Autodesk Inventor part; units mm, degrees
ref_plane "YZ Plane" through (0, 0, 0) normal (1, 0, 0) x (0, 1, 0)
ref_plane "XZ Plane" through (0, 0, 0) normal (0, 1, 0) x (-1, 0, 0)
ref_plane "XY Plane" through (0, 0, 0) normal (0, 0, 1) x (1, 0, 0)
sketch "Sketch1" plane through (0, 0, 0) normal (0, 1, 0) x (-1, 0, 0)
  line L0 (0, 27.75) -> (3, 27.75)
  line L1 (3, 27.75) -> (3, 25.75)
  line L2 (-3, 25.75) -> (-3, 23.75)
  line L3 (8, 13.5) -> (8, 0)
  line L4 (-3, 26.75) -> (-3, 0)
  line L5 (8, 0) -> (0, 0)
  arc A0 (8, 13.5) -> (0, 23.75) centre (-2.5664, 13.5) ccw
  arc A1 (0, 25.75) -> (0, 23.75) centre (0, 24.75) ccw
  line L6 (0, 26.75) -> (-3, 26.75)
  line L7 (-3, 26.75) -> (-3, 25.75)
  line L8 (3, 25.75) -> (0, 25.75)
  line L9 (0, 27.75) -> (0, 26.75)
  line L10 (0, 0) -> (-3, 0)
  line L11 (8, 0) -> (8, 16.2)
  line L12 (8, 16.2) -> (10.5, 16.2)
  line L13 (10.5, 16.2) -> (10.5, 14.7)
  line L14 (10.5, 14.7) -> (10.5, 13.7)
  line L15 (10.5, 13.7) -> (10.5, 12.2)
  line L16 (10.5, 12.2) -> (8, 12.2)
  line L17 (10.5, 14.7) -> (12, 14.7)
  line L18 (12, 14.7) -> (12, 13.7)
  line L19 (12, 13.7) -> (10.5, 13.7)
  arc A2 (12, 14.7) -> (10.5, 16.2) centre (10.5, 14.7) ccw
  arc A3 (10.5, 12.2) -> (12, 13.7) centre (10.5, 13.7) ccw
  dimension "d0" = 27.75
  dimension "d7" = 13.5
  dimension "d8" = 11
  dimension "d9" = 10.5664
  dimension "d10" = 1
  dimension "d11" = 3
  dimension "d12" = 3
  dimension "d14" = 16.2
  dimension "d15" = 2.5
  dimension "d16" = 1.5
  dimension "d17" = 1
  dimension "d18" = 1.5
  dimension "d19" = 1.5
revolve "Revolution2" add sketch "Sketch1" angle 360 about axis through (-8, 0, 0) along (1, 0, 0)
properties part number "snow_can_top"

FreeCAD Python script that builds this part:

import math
import FreeCAD as App
import Part
import Sketcher
from FreeCAD import Vector

doc = App.newDocument("Part")
body = doc.addObject("PartDesign::Body", "Body")

sketch1 = doc.addObject("Sketcher::SketchObject", "Sketch")
body.addObject(sketch1)
sketch1.AttachmentSupport = (doc.XZ_Plane, [""])
sketch1.MapMode = "FlatFace"
sketch1.addGeometry([
    Part.LineSegment(Vector(-3, 27.75, 0), Vector(0, 27.75, 0)),
    Part.LineSegment(Vector(0, 27.75, 0), Vector(0, 26.75, 0)),
    Part.LineSegment(Vector(0, 26.75, 0), Vector(3, 26.75, 0)),
    Part.LineSegment(Vector(3, 26.75, 0), Vector(3, 0, 0)),
    Part.LineSegment(Vector(3, 0, 0), Vector(-8, 0, 0)),
    Part.LineSegment(Vector(-8, 0, 0), Vector(-8, 12.2, 0)),
    Part.LineSegment(Vector(-8, 12.2, 0), Vector(-10.5, 12.2, 0)),
    Part.ArcOfCircle(Part.Circle(Vector(-10.5, 13.7, 0), Vector(0, 0, 1), 1.5), math.radians(180), math.radians(270)),
    Part.LineSegment(Vector(-12, 13.7, 0), Vector(-12, 14.7, 0)),
    Part.ArcOfCircle(Part.Circle(Vector(-10.5, 14.7, 0), Vector(0, 0, 1), 1.5), math.radians(90), math.radians(180)),
    Part.LineSegment(Vector(-10.5, 16.2, 0), Vector(-8, 16.2, 0)),
    Part.LineSegment(Vector(-8, 16.2, 0), Vector(-8, 13.5, 0)),
    Part.ArcOfCircle(Part.Circle(Vector(2.5664, 13.5, 0), Vector(0, 0, 1), 10.5664), math.radians(104.05676), math.radians(180)),
    Part.ArcOfCircle(Part.Circle(Vector(0, 24.75, 0), Vector(0, 0, 1), 1), math.radians(-90), math.radians(90)),
    Part.LineSegment(Vector(0, 25.75, 0), Vector(-3, 25.75, 0)),
    Part.LineSegment(Vector(-3, 25.75, 0), Vector(-3, 27.75, 0)),
], False)
sketch1.addConstraint([
    Sketcher.Constraint("Coincident", 0, 2, 1, 1),
    Sketcher.Constraint("Coincident", 1, 2, 2, 1),
    Sketcher.Constraint("Coincident", 2, 2, 3, 1),
    Sketcher.Constraint("Coincident", 3, 2, 4, 1),
    Sketcher.Constraint("Coincident", 4, 2, 5, 1),
    Sketcher.Constraint("Coincident", 5, 2, 6, 1),
    Sketcher.Constraint("Tangent", 6, 2, 7, 2),
    Sketcher.Constraint("Tangent", 7, 1, 8, 1),
    Sketcher.Constraint("Tangent", 8, 2, 9, 2),
    Sketcher.Constraint("Tangent", 9, 1, 10, 1),
    Sketcher.Constraint("Coincident", 10, 2, 11, 1),
    Sketcher.Constraint("Tangent", 11, 2, 12, 2),
    Sketcher.Constraint("Coincident", 12, 1, 13, 1),
    Sketcher.Constraint("Tangent", 13, 2, 14, 1),
    Sketcher.Constraint("Coincident", 14, 2, 15, 1),
    Sketcher.Constraint("Coincident", 15, 2, 0, 1),
    Sketcher.Constraint("Horizontal", 0),
    Sketcher.Constraint("Vertical", 1),
    Sketcher.Constraint("Horizontal", 2),
    Sketcher.Constraint("Vertical", 3),
    Sketcher.Constraint("Horizontal", 4),
    Sketcher.Constraint("Vertical", 5),
    Sketcher.Constraint("Horizontal", 6),
    Sketcher.Constraint("Vertical", 8),
    Sketcher.Constraint("Horizontal", 10),
    Sketcher.Constraint("Vertical", 11),
    Sketcher.Constraint("Horizontal", 14),
    Sketcher.Constraint("Vertical", 15),
    Sketcher.Constraint("Equal", 7, 9),
    Sketcher.Constraint("PointOnObject", 13, 3, -2),
    Sketcher.Constraint("PointOnObject", 0, 2, -2),
    Sketcher.Constraint("PointOnObject", 3, 2, -1),
    Sketcher.Constraint("PointOnObject", 12, 1, -2),
    Sketcher.Constraint("Vertical", 5, 2, 10, 2),
    Sketcher.Constraint("Equal", 0, 2),
    Sketcher.Constraint("Equal", 1, 8),
    Sketcher.Constraint("Radius", 13, 1.0),
    Sketcher.Constraint("Radius", 7, 1.5),
    Sketcher.Constraint("DistanceX", 0, 1, 0, 2, 3.0),
    Sketcher.Constraint("DistanceX", 4, 2, 4, 1, 11.0),
    Sketcher.Constraint("DistanceY", 1, 2, 1, 1, 1.0),
    Sketcher.Constraint("DistanceX", 6, 2, 6, 1, 2.5),
    Sketcher.Constraint("DistanceY", 13, 3, 0, 2, 3.0),
    Sketcher.Constraint("DistanceY", -1, 1, 12, 3, 13.5),
    Sketcher.Constraint("DistanceY", -1, 1, 9, 1, 16.2),
    Sketcher.Constraint("Radius", 12, 10.5664),
])
revolution = doc.addObject("PartDesign::Revolution", "Revolution")
body.addObject(revolution)
revolution.Profile = sketch1
revolution.ReferenceAxis = (sketch1, ["H_Axis"])
revolution.Angle = 360

doc.recompute()
